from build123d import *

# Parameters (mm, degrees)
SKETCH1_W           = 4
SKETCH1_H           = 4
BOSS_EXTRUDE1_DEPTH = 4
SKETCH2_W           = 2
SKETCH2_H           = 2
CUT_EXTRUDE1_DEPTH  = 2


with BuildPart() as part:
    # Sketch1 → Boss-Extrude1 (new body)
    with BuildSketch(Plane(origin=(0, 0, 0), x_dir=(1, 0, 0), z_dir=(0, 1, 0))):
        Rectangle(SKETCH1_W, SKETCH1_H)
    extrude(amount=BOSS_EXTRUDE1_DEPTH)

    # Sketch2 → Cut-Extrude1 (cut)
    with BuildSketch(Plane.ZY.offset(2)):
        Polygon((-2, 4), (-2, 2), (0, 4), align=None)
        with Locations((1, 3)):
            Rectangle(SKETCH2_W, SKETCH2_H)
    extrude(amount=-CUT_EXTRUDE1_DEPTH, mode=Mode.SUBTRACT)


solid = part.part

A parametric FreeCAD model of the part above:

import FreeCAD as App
import Part
import Sketcher

V = App.Vector


def add_polygon(sketch, points):
    """Adds a closed chain of lines whose ends are joined by coincident constraints."""
    first, n = sketch.GeometryCount, len(points)
    for a, b in zip(points, points[1:] + points[:1]):
        sketch.addGeometry(Part.LineSegment(App.Vector(*a, 0), App.Vector(*b, 0)), False)
    for i in range(n):
        sketch.addConstraint(Sketcher.Constraint("Coincident", first + i, 2, first + (i + 1) % n, 1))

doc = App.newDocument("Part")
body = doc.addObject("PartDesign::Body", "Body")

# Sketch on XZ plane
sketch1 = body.newObject("Sketcher::SketchObject", "Sketch")
sketch1.AttachmentSupport = (doc.getObject("XZ_Plane"), [""])
sketch1.MapMode = "FlatFace"
add_polygon(sketch1, [(-2, -2), (-2, 2), (2, 2), (2, -2)])  # lines 0-3
sketch1.addConstraint(Sketcher.Constraint("Vertical", 0))
sketch1.addConstraint(Sketcher.Constraint("Horizontal", 1))
sketch1.addConstraint(Sketcher.Constraint("Vertical", 2))
sketch1.addConstraint(Sketcher.Constraint("Horizontal", 3))
sketch1.addConstraint(Sketcher.Constraint("Symmetric", 0, 2, 2, 2, -1, 1))
sketch1.addConstraint(Sketcher.Constraint("Equal", 3, 0))
sketch1.addConstraint(Sketcher.Constraint("DistanceX", 1, 1, 1, 2, 4.0))
pad1 = body.newObject("PartDesign::Pad", "Pad")
pad1.Profile = sketch1
pad1.Length = 4
pad1.Reversed = True

# Sketch on YZ plane
sketch2 = body.newObject("Sketcher::SketchObject", "Sketch001")
sketch2.AttachmentSupport = (doc.getObject("YZ_Plane"), [""])
sketch2.MapMode = "FlatFace"
sketch2.AttachmentOffset = App.Placement(V(0, 0, -2), App.Rotation())
add_polygon(sketch2, [(4, -2), (2, -2), (4, 0)])  # lines 0-2
add_polygon(sketch2, [(4, 0), (2, 0), (2, 2), (4, 2)])  # lines 3-6
sketch2.addConstraint(Sketcher.Constraint("Horizontal", 0))
sketch2.addConstraint(Sketcher.Constraint("Vertical", 2))
sketch2.addConstraint(Sketcher.Constraint("Horizontal", 3))
sketch2.addConstraint(Sketcher.Constraint("Vertical", 4))
sketch2.addConstraint(Sketcher.Constraint("Horizontal", 5))
sketch2.addConstraint(Sketcher.Constraint("Vertical", 6))
sketch2.addConstraint(Sketcher.Constraint("Coincident", 6, 2, 1, 2))
sketch2.addConstraint(Sketcher.Constraint("Symmetric", 0, 2, 4, 2, -1))
sketch2.addConstraint(Sketcher.Constraint("PointOnObject", 1, 2, -1))
sketch2.addConstraint(Sketcher.Constraint("Equal", 5, 2))
sketch2.addConstraint(Sketcher.Constraint("DistanceX", 0, 2, 0, 1, 2.0))
sketch2.addConstraint(Sketcher.Constraint("DistanceX", -1, 1, 0, 2, 2.0))
pocket1 = body.newObject("PartDesign::Pocket", "Pocket")
pocket1.Profile = sketch2
pocket1.Length = 2
pocket1.Reversed = True

doc.recompute()
